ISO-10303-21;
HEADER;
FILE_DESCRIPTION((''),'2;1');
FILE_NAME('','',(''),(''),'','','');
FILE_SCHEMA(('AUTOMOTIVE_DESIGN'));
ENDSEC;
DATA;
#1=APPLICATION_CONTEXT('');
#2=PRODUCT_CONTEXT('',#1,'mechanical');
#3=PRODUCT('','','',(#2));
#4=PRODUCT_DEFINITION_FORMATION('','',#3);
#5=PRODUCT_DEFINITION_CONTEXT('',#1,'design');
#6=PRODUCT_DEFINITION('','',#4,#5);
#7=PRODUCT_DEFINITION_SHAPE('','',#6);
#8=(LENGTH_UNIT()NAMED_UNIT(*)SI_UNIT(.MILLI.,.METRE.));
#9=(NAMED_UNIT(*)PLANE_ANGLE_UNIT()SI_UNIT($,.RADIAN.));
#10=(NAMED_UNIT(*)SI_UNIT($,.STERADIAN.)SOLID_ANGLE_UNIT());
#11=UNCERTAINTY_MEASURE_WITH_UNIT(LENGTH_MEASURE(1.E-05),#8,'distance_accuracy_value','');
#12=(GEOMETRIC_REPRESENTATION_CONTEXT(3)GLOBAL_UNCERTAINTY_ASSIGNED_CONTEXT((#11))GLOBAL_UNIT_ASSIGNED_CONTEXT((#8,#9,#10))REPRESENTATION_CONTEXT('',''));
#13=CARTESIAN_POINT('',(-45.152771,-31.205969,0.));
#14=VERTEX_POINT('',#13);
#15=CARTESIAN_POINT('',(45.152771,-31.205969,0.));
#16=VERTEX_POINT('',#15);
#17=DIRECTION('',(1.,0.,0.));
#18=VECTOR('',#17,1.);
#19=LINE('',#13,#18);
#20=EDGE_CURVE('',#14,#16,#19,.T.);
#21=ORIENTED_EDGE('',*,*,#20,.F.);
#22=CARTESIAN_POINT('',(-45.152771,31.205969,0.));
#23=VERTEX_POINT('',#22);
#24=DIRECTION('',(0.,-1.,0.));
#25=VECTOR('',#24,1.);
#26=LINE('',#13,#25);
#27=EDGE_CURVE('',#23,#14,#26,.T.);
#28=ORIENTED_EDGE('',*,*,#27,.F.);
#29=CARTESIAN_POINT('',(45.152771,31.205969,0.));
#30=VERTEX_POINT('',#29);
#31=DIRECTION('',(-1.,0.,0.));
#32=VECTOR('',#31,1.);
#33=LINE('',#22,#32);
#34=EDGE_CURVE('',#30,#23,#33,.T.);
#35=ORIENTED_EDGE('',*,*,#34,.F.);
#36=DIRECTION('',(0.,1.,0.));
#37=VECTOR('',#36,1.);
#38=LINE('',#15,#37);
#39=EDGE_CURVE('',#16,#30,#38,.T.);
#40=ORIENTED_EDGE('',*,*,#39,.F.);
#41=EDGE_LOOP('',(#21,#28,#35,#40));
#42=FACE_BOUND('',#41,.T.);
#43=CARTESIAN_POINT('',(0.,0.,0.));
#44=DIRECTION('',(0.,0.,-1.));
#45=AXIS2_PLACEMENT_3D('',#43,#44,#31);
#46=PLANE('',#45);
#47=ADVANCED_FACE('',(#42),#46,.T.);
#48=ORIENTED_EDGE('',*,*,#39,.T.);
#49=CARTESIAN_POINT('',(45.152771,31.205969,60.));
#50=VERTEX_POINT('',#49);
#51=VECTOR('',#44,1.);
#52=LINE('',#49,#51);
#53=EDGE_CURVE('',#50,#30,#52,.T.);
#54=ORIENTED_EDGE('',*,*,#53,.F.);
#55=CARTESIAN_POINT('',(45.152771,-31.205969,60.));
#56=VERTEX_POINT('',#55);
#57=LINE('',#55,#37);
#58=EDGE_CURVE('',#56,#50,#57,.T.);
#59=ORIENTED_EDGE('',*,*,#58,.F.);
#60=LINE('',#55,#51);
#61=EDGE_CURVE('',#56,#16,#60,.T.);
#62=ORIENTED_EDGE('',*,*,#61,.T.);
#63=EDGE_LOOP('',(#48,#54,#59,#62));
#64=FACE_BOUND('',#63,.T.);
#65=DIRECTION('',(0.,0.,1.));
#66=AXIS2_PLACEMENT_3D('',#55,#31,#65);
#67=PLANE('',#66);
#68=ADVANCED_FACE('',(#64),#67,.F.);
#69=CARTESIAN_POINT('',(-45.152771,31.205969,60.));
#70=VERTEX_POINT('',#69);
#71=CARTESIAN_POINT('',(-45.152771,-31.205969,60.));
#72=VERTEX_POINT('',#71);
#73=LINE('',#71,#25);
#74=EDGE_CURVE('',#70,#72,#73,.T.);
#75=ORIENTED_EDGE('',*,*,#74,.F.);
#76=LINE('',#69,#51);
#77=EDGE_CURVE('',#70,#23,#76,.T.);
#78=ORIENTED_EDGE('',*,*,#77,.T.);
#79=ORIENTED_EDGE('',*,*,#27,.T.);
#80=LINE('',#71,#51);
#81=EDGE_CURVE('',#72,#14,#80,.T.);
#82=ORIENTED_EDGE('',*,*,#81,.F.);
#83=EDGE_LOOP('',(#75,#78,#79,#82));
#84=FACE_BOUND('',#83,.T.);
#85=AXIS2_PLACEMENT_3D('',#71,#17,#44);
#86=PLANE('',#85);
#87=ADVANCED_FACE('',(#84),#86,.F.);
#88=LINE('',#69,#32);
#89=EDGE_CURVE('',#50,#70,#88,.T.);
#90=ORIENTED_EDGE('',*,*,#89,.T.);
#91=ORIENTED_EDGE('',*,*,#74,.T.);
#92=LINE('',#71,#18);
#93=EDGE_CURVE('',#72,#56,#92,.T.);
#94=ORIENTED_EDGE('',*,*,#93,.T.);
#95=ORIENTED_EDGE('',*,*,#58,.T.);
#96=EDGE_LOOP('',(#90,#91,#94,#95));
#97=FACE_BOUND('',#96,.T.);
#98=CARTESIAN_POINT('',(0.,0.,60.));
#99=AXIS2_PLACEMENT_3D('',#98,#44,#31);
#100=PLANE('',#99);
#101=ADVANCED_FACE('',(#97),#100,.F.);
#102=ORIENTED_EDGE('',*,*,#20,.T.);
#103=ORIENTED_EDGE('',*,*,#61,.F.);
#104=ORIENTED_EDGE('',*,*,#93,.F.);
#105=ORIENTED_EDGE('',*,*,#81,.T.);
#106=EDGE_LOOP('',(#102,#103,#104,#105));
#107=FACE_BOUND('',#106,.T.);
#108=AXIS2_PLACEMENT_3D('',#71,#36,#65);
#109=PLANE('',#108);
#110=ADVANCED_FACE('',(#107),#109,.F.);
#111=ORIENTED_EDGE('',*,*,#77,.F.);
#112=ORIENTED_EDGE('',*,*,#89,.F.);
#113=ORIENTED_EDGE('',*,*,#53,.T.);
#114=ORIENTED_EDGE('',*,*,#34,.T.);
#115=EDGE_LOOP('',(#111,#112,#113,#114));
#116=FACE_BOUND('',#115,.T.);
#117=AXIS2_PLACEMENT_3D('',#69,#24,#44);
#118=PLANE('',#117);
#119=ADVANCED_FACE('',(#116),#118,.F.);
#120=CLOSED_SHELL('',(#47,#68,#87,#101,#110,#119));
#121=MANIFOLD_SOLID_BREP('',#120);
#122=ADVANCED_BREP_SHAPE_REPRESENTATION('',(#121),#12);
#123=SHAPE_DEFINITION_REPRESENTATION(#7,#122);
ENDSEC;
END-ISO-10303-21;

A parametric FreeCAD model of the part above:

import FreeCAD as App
import Part
import Sketcher


def add_polygon(sketch, points):
    """Adds a closed chain of lines whose ends are joined by coincident constraints."""
    first, n = sketch.GeometryCount, len(points)
    for a, b in zip(points, points[1:] + points[:1]):
        sketch.addGeometry(Part.LineSegment(App.Vector(*a, 0), App.Vector(*b, 0)), False)
    for i in range(n):
        sketch.addConstraint(Sketcher.Constraint("Coincident", first + i, 2, first + (i + 1) % n, 1))

doc = App.newDocument("Part")
body = doc.addObject("PartDesign::Body", "Body")

# Sketch on XY plane
sketch1 = body.newObject("Sketcher::SketchObject", "Sketch")
sketch1.AttachmentSupport = (doc.getObject("XY_Plane"), [""])
sketch1.MapMode = "FlatFace"
add_polygon(sketch1, [(-45, 31), (-45, -31), (45, -31), (45, 31)])  # lines 0-3
sketch1.addConstraint(Sketcher.Constraint("Vertical", 0))
sketch1.addConstraint(Sketcher.Constraint("Horizontal", 1))
sketch1.addConstraint(Sketcher.Constraint("Vertical", 2))
sketch1.addConstraint(Sketcher.Constraint("Horizontal", 3))
sketch1.addConstraint(Sketcher.Constraint("Symmetric", 0, 2, 2, 2, -1, 1))
sketch1.addConstraint(Sketcher.Constraint("DistanceX", 1, 1, 1, 2, 90.305542))
sketch1.addConstraint(Sketcher.Constraint("DistanceY", 0, 2, 0, 1, 62.411938))
pad1 = body.newObject("PartDesign::Pad", "Pad")
pad1.Profile = sketch1
pad1.Length = 60

doc.recompute()
